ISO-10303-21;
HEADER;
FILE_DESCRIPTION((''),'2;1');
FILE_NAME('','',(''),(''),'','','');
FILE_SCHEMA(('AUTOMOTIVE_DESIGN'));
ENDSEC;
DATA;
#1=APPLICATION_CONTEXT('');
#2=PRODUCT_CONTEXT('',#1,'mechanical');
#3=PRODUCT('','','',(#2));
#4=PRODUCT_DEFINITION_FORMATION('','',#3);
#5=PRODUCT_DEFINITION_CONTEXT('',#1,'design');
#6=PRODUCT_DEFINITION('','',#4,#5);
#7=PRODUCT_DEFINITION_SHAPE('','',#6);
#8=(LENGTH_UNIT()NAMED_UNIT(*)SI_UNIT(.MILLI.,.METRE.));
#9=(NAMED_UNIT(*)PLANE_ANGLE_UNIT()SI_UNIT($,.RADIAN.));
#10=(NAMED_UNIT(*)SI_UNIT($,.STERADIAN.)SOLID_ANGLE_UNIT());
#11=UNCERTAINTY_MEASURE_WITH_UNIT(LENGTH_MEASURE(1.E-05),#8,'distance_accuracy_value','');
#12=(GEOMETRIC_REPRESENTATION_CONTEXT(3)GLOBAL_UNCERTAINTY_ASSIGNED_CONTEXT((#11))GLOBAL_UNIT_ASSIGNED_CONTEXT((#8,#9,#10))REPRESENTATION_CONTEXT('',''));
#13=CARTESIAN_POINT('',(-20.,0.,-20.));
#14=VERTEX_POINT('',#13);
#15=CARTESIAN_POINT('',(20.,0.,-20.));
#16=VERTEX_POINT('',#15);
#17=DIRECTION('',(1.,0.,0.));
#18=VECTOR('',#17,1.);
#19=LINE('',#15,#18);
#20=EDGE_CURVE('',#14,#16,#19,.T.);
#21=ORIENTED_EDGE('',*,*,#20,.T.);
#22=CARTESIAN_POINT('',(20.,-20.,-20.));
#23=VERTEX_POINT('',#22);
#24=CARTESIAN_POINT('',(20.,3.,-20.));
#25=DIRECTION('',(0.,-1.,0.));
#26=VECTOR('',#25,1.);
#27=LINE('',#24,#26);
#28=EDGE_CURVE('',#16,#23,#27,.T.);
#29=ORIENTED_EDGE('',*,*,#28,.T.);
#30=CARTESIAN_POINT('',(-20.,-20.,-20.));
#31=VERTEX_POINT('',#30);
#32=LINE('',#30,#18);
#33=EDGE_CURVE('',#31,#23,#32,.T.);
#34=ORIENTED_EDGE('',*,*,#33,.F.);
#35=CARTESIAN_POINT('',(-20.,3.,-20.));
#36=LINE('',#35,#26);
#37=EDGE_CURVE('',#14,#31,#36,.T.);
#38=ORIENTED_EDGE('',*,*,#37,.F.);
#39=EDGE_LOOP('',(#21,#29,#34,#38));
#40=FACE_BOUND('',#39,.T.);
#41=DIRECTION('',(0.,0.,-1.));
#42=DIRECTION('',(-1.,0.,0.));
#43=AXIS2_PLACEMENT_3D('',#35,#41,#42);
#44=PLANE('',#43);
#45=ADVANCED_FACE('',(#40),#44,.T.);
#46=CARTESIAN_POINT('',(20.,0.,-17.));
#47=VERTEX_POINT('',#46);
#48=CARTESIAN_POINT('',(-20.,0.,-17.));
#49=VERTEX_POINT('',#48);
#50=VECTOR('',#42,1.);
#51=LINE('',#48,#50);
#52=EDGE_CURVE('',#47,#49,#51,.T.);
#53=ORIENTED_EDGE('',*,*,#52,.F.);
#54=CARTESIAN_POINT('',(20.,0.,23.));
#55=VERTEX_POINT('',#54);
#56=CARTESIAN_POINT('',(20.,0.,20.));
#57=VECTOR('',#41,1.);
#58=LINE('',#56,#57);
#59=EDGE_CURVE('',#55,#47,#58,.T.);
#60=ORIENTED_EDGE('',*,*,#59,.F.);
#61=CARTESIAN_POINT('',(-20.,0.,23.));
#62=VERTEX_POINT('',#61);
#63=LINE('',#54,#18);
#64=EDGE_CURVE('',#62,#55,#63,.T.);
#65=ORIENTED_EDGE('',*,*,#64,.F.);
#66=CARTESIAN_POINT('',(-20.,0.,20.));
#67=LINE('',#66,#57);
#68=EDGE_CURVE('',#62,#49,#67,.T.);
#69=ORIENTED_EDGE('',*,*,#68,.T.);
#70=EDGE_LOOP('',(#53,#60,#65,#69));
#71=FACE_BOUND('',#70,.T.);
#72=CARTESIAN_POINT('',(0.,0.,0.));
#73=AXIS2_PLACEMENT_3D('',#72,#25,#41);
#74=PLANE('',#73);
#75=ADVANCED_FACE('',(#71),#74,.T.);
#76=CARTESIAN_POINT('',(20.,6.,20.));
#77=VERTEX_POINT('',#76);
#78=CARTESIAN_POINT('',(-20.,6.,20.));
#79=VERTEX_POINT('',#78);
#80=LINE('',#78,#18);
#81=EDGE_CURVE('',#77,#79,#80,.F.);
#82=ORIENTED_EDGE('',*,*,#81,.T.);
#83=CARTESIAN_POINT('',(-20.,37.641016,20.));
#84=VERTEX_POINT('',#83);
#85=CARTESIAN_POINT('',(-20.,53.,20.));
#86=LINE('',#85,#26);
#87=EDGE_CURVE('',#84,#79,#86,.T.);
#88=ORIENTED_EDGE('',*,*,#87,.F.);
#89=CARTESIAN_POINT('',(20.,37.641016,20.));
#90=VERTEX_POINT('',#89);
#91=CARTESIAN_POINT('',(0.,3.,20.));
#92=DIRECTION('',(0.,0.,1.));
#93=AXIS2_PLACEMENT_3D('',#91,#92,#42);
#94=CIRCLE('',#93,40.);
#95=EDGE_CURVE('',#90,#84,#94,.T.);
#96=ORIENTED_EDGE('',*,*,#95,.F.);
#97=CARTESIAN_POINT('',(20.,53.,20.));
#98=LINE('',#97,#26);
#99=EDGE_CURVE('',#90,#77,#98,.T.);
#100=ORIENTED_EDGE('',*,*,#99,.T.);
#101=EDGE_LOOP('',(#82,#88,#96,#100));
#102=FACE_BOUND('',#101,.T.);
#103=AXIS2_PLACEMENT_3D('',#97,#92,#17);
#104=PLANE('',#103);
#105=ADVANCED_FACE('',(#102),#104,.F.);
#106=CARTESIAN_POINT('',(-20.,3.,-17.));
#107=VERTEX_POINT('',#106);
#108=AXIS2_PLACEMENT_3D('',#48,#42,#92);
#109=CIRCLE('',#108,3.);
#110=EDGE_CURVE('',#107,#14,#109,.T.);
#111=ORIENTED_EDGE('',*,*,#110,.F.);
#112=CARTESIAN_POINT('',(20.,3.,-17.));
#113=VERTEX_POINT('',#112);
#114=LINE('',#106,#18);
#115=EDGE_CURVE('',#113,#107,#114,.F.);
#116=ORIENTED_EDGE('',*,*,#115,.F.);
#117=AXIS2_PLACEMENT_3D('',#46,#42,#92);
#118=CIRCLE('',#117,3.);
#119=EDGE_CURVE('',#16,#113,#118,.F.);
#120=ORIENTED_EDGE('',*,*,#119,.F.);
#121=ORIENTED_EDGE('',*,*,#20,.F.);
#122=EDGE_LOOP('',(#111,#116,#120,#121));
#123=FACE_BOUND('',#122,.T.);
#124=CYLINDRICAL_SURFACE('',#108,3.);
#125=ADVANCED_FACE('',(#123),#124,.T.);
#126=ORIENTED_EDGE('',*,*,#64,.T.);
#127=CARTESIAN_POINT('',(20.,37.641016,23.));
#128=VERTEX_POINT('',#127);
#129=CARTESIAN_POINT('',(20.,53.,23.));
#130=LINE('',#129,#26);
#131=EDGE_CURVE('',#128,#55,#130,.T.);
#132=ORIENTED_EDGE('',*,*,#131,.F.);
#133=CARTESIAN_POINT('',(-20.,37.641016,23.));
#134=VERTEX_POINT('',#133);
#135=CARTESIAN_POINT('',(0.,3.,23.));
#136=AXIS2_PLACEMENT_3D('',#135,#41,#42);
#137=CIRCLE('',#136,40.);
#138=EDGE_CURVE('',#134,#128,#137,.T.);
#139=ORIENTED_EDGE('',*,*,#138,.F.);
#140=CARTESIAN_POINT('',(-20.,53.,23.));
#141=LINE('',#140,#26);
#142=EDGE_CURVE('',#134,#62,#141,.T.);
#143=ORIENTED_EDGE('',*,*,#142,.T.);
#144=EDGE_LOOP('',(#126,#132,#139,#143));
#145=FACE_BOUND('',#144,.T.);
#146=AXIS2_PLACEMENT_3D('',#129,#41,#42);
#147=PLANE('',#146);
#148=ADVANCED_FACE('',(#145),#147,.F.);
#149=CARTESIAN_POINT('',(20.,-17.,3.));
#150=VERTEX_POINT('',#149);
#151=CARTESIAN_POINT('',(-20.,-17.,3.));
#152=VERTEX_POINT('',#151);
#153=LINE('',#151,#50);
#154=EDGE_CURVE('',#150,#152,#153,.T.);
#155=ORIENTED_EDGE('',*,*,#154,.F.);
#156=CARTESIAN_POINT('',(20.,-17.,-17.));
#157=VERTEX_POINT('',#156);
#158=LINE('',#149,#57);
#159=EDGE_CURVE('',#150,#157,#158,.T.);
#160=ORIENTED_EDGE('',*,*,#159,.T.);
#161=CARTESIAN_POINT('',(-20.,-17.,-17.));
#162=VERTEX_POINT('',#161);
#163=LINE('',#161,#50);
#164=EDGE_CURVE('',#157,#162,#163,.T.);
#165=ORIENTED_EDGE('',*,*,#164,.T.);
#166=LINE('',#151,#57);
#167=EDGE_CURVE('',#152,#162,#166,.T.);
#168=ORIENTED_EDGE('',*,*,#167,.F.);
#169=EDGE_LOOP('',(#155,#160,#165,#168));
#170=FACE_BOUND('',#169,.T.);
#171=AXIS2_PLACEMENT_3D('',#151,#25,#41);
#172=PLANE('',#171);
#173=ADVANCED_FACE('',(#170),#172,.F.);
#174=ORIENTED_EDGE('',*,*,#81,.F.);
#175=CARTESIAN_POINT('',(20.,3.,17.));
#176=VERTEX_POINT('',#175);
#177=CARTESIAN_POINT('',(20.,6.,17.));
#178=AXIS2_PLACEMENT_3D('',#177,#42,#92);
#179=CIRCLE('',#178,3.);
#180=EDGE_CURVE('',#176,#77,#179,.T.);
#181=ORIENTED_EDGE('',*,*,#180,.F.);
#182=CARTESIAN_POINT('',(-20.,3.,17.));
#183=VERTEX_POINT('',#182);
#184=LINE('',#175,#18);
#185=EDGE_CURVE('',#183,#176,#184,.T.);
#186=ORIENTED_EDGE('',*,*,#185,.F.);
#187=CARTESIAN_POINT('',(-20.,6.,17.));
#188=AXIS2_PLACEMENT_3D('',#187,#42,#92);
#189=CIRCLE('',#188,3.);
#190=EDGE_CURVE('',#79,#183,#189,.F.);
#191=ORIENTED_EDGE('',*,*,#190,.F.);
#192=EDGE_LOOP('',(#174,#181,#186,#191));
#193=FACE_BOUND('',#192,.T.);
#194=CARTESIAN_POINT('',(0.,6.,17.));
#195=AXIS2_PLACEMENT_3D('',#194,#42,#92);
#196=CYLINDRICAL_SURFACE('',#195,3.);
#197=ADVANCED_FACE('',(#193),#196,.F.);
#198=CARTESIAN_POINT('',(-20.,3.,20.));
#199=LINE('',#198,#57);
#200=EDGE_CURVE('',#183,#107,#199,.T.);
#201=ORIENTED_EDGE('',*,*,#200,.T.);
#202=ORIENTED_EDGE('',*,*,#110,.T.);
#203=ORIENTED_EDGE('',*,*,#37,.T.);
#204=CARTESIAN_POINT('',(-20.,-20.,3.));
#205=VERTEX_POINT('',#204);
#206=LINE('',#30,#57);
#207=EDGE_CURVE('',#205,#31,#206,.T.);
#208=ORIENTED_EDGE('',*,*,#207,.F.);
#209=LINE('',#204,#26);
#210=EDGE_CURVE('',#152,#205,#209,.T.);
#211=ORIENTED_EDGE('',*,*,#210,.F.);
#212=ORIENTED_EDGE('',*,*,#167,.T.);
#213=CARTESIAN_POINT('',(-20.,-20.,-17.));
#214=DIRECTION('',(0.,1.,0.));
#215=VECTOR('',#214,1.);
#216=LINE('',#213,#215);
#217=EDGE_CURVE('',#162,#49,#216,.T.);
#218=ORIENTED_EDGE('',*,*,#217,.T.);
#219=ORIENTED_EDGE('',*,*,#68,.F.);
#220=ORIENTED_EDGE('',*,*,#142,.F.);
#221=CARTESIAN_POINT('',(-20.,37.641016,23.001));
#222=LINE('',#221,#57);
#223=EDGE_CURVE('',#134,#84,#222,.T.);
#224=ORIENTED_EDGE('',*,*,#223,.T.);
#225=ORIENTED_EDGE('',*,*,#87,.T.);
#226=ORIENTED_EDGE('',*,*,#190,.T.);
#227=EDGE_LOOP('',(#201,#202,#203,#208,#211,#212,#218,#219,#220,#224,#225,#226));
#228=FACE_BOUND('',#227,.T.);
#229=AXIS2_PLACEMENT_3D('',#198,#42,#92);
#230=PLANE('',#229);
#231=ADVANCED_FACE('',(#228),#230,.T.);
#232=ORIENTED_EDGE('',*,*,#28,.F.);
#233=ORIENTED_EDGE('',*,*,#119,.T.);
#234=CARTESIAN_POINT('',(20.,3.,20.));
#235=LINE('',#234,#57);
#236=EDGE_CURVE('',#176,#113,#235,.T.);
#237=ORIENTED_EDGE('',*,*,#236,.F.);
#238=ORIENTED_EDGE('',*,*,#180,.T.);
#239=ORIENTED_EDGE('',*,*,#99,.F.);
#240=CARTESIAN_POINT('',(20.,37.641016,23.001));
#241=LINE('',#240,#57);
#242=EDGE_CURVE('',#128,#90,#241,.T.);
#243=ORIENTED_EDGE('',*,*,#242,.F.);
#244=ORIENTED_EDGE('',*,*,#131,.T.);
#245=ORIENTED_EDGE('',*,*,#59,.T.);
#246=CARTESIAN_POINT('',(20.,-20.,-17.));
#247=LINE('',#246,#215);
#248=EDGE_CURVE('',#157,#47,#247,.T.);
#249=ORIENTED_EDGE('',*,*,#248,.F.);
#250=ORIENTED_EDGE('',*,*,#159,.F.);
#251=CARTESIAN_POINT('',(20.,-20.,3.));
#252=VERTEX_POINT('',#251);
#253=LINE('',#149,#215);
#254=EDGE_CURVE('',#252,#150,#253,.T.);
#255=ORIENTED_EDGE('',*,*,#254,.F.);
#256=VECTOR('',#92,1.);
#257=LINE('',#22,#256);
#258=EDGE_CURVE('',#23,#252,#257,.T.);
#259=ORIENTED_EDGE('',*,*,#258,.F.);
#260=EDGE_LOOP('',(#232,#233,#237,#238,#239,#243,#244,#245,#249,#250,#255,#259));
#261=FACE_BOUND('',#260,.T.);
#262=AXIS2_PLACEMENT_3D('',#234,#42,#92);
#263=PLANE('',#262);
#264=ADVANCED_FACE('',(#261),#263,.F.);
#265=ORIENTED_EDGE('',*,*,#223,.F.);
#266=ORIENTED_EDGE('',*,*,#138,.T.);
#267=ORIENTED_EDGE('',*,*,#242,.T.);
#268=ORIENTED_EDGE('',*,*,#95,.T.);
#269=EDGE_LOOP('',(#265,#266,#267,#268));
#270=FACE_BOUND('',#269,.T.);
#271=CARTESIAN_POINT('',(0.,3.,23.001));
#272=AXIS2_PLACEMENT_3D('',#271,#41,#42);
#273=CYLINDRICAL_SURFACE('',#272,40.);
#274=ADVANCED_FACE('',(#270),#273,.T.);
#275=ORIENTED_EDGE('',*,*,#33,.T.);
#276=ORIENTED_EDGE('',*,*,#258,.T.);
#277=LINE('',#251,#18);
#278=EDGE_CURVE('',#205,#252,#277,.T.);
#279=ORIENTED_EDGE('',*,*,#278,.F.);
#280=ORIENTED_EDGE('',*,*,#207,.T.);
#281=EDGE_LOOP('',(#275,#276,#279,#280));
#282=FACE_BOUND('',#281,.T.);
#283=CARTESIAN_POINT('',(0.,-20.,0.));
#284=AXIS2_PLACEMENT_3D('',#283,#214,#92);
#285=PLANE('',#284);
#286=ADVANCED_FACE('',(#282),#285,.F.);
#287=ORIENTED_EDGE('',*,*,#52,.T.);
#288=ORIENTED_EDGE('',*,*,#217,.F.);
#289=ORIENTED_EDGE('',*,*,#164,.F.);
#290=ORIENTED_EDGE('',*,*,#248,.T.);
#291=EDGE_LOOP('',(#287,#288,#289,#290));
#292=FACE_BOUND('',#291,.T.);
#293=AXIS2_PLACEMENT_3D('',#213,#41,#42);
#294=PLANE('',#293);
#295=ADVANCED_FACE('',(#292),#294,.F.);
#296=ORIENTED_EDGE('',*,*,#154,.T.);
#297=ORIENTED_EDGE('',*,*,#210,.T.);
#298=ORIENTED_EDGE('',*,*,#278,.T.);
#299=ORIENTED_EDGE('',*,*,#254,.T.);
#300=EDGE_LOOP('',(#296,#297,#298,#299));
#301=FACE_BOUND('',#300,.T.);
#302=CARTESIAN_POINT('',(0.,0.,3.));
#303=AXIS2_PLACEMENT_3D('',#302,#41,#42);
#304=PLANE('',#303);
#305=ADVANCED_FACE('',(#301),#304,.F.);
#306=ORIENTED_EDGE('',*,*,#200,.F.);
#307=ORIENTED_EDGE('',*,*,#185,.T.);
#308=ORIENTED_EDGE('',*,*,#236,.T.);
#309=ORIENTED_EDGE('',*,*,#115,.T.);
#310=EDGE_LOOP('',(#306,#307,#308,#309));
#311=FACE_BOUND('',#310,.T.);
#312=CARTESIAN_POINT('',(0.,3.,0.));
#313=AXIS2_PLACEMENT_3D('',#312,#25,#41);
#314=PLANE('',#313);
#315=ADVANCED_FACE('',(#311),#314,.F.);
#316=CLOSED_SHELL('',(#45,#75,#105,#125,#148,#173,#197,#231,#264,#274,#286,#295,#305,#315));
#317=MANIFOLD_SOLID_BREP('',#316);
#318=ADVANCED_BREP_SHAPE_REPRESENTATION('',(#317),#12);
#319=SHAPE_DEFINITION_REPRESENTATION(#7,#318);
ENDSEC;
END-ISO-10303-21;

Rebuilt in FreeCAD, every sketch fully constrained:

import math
import FreeCAD as App
import Part
import Sketcher
from FreeCAD import Vector


def edges_at(feature, points):
    """Names of the edges that pass closest to the given points."""
    edges = feature.Shape.Edges
    near = lambda p: min(range(len(edges)), key=lambda i: edges[i].distToShape(Part.Vertex(*p))[0])
    return sorted({f"Edge{near(p) + 1}" for p in points})

doc = App.newDocument("Part")
body = doc.addObject("PartDesign::Body", "Body")

sketch1 = doc.addObject("Sketcher::SketchObject", "Sketch")
body.addObject(sketch1)
sketch1.AttachmentSupport = (doc.XZ_Plane, [""])
sketch1.MapMode = "FlatFace"
sketch1.addGeometry([
    Part.LineSegment(Vector(-20, -20, 0), Vector(-20, 20, 0)),
    Part.LineSegment(Vector(-20, 20, 0), Vector(20, 20, 0)),
    Part.LineSegment(Vector(20, 20, 0), Vector(20, -20, 0)),
    Part.LineSegment(Vector(20, -20, 0), Vector(-20, -20, 0)),
], False)
sketch1.addConstraint([
    Sketcher.Constraint("Coincident", 0, 2, 1, 1),
    Sketcher.Constraint("Coincident", 1, 2, 2, 1),
    Sketcher.Constraint("Coincident", 2, 2, 3, 1),
    Sketcher.Constraint("Coincident", 3, 2, 0, 1),
    Sketcher.Constraint("Vertical", 0),
    Sketcher.Constraint("Horizontal", 1),
    Sketcher.Constraint("Vertical", 2),
    Sketcher.Constraint("Horizontal", 3),
    Sketcher.Constraint("Symmetric", 0, 2, 2, 2, -1, 1),
    Sketcher.Constraint("Equal", 3, 0),
    Sketcher.Constraint("DistanceX", 1, 1, 1, 2, 40.0),
])
pad1 = doc.addObject("PartDesign::Pad", "Pad")
body.addObject(pad1)
pad1.Profile = sketch1
pad1.Length = 3
pad1.Reversed = True

sketch2 = doc.addObject("Sketcher::SketchObject", "Sketch001")
body.addObject(sketch2)
sketch2.AttachmentSupport = (doc.XZ_Plane, [""])
sketch2.MapMode = "FlatFace"
sketch2.addGeometry([
    Part.LineSegment(Vector(-20, 20, 0), Vector(-20, 23, 0)),
    Part.LineSegment(Vector(-20, 23, 0), Vector(20, 23, 0)),
    Part.LineSegment(Vector(20, 23, 0), Vector(20, 20, 0)),
    Part.LineSegment(Vector(20, 20, 0), Vector(-20, 20, 0)),
], False)
sketch2.addConstraint([
    Sketcher.Constraint("Coincident", 0, 2, 1, 1),
    Sketcher.Constraint("Coincident", 1, 2, 2, 1),
    Sketcher.Constraint("Coincident", 2, 2, 3, 1),
    Sketcher.Constraint("Coincident", 3, 2, 0, 1),
    Sketcher.Constraint("Vertical", 0),
    Sketcher.Constraint("Horizontal", 1),
    Sketcher.Constraint("Vertical", 2),
    Sketcher.Constraint("Horizontal", 3),
    Sketcher.Constraint("DistanceX", 1, 1, 1, 2, 40.0),
    Sketcher.Constraint("DistanceY", 0, 1, 0, 2, 3.0),
    Sketcher.Constraint("DistanceX", 0, 2, -1, 1, 20.0),
    Sketcher.Constraint("DistanceY", -1, 1, 0, 2, 23.0),
])
pad2 = doc.addObject("PartDesign::Pad", "Pad001")
body.addObject(pad2)
pad2.Profile = sketch2
pad2.Length = 53
pad2.Reversed = True

sketch3 = doc.addObject("Sketcher::SketchObject", "Sketch002")
body.addObject(sketch3)
sketch3.AttachmentSupport = (doc.XZ_Plane, [""])
sketch3.MapMode = "FlatFace"
sketch3.addGeometry([
    Part.LineSegment(Vector(-20, -17, 0), Vector(-20, -20, 0)),
    Part.LineSegment(Vector(-20, -20, 0), Vector(20, -20, 0)),
    Part.LineSegment(Vector(20, -20, 0), Vector(20, -17, 0)),
    Part.LineSegment(Vector(20, -17, 0), Vector(-20, -17, 0)),
], False)
sketch3.addConstraint([
    Sketcher.Constraint("Coincident", 0, 2, 1, 1),
    Sketcher.Constraint("Coincident", 1, 2, 2, 1),
    Sketcher.Constraint("Coincident", 2, 2, 3, 1),
    Sketcher.Constraint("Coincident", 3, 2, 0, 1),
    Sketcher.Constraint("Vertical", 0),
    Sketcher.Constraint("Horizontal", 1),
    Sketcher.Constraint("Vertical", 2),
    Sketcher.Constraint("Horizontal", 3),
    Sketcher.Constraint("DistanceX", 1, 1, 1, 2, 40.0),
    Sketcher.Constraint("DistanceY", 0, 2, 0, 1, 3.0),
    Sketcher.Constraint("DistanceX", 0, 2, -1, 1, 20.0),
    Sketcher.Constraint("DistanceY", 0, 2, -1, 1, 20.0),
])
pad3 = doc.addObject("PartDesign::Pad", "Pad002")
body.addObject(pad3)
pad3.Profile = sketch3
pad3.Length = 20

sketch4 = doc.addObject("Sketcher::SketchObject", "Sketch003")
body.addObject(sketch4)
sketch4.AttachmentSupport = (doc.XY_Plane, [""])
sketch4.MapMode = "FlatFace"
sketch4.AttachmentOffset = App.Placement(Vector(0, 0, 20), App.Rotation())
sketch4.addGeometry([
    Part.LineSegment(Vector(20, 53, 0), Vector(20, 38, 0)),
    Part.ArcOfCircle(Part.Circle(Vector(0, 3, 0), Vector(0, 0, 1), 40), math.radians(60), math.radians(120)),
    Part.LineSegment(Vector(-20, 38, 0), Vector(-20, 53, 0)),
    Part.LineSegment(Vector(-20, 53, 0), Vector(20, 53, 0)),
], False)
sketch4.addConstraint([
    Sketcher.Constraint("Coincident", 0, 2, 1, 1),
    Sketcher.Constraint("Coincident", 1, 2, 2, 1),
    Sketcher.Constraint("Coincident", 2, 2, 3, 1),
    Sketcher.Constraint("Coincident", 3, 2, 0, 1),
    Sketcher.Constraint("Vertical", 0),
    Sketcher.Constraint("Vertical", 2),
    Sketcher.Constraint("Horizontal", 3),
    Sketcher.Constraint("Symmetric", 0, 2, 1, 2, -2),
    Sketcher.Constraint("Radius", 1, 40.0),
    Sketcher.Constraint("DistanceX", 3, 1, 3, 2, 40.0),
    Sketcher.Constraint("DistanceY", -1, 1, 1, 3, 3.0),
    Sketcher.Constraint("DistanceY", -1, 1, 2, 2, 53.0),
])
pocket1 = doc.addObject("PartDesign::Pocket", "Pocket")
body.addObject(pocket1)
pocket1.Profile = sketch4
pocket1.Type = "UpToFirst"
pocket1.Reversed = True
doc.recompute()

fillet = doc.addObject("PartDesign::Fillet", "Fillet")
body.addObject(fillet)
fillet.Base = (pocket1, edges_at(pocket1, [(0, 3, 20), (0, 3, -20)]))
fillet.Radius = 3

sketch5 = doc.addObject("Sketcher::SketchObject", "Sketch004")
body.addObject(sketch5)
sketch5.AttachmentSupport = (doc.XY_Plane, [""])
sketch5.MapMode = "FlatFace"
sketch5.AttachmentOffset = App.Placement(Vector(0, 0, -17), App.Rotation())
sketch5.addGeometry([
    Part.LineSegment(Vector(-20, -17, 0), Vector(-20, -20, 0)),
    Part.LineSegment(Vector(-20, -20, 0), Vector(20, -20, 0)),
    Part.LineSegment(Vector(20, -20, 0), Vector(20, -17, 0)),
    Part.LineSegment(Vector(20, -17, 0), Vector(-20, -17, 0)),
], False)
sketch5.addConstraint([
    Sketcher.Constraint("Coincident", 0, 2, 1, 1),
    Sketcher.Constraint("Coincident", 1, 2, 2, 1),
    Sketcher.Constraint("Coincident", 2, 2, 3, 1),
    Sketcher.Constraint("Coincident", 3, 2, 0, 1),
    Sketcher.Constraint("Vertical", 0),
    Sketcher.Constraint("Horizontal", 1),
    Sketcher.Constraint("Vertical", 2),
    Sketcher.Constraint("Horizontal", 3),
    Sketcher.Constraint("DistanceX", 1, 1, 1, 2, 40.0),
    Sketcher.Constraint("DistanceY", 0, 2, 0, 1, 3.0),
    Sketcher.Constraint("DistanceX", 0, 2, -1, 1, 20.0),
    Sketcher.Constraint("DistanceY", 0, 2, -1, 1, 20.0),
])
pad4 = doc.addObject("PartDesign::Pad", "Pad003")
body.addObject(pad4)
pad4.Profile = sketch5
pad4.Length = 20

doc.recompute()
